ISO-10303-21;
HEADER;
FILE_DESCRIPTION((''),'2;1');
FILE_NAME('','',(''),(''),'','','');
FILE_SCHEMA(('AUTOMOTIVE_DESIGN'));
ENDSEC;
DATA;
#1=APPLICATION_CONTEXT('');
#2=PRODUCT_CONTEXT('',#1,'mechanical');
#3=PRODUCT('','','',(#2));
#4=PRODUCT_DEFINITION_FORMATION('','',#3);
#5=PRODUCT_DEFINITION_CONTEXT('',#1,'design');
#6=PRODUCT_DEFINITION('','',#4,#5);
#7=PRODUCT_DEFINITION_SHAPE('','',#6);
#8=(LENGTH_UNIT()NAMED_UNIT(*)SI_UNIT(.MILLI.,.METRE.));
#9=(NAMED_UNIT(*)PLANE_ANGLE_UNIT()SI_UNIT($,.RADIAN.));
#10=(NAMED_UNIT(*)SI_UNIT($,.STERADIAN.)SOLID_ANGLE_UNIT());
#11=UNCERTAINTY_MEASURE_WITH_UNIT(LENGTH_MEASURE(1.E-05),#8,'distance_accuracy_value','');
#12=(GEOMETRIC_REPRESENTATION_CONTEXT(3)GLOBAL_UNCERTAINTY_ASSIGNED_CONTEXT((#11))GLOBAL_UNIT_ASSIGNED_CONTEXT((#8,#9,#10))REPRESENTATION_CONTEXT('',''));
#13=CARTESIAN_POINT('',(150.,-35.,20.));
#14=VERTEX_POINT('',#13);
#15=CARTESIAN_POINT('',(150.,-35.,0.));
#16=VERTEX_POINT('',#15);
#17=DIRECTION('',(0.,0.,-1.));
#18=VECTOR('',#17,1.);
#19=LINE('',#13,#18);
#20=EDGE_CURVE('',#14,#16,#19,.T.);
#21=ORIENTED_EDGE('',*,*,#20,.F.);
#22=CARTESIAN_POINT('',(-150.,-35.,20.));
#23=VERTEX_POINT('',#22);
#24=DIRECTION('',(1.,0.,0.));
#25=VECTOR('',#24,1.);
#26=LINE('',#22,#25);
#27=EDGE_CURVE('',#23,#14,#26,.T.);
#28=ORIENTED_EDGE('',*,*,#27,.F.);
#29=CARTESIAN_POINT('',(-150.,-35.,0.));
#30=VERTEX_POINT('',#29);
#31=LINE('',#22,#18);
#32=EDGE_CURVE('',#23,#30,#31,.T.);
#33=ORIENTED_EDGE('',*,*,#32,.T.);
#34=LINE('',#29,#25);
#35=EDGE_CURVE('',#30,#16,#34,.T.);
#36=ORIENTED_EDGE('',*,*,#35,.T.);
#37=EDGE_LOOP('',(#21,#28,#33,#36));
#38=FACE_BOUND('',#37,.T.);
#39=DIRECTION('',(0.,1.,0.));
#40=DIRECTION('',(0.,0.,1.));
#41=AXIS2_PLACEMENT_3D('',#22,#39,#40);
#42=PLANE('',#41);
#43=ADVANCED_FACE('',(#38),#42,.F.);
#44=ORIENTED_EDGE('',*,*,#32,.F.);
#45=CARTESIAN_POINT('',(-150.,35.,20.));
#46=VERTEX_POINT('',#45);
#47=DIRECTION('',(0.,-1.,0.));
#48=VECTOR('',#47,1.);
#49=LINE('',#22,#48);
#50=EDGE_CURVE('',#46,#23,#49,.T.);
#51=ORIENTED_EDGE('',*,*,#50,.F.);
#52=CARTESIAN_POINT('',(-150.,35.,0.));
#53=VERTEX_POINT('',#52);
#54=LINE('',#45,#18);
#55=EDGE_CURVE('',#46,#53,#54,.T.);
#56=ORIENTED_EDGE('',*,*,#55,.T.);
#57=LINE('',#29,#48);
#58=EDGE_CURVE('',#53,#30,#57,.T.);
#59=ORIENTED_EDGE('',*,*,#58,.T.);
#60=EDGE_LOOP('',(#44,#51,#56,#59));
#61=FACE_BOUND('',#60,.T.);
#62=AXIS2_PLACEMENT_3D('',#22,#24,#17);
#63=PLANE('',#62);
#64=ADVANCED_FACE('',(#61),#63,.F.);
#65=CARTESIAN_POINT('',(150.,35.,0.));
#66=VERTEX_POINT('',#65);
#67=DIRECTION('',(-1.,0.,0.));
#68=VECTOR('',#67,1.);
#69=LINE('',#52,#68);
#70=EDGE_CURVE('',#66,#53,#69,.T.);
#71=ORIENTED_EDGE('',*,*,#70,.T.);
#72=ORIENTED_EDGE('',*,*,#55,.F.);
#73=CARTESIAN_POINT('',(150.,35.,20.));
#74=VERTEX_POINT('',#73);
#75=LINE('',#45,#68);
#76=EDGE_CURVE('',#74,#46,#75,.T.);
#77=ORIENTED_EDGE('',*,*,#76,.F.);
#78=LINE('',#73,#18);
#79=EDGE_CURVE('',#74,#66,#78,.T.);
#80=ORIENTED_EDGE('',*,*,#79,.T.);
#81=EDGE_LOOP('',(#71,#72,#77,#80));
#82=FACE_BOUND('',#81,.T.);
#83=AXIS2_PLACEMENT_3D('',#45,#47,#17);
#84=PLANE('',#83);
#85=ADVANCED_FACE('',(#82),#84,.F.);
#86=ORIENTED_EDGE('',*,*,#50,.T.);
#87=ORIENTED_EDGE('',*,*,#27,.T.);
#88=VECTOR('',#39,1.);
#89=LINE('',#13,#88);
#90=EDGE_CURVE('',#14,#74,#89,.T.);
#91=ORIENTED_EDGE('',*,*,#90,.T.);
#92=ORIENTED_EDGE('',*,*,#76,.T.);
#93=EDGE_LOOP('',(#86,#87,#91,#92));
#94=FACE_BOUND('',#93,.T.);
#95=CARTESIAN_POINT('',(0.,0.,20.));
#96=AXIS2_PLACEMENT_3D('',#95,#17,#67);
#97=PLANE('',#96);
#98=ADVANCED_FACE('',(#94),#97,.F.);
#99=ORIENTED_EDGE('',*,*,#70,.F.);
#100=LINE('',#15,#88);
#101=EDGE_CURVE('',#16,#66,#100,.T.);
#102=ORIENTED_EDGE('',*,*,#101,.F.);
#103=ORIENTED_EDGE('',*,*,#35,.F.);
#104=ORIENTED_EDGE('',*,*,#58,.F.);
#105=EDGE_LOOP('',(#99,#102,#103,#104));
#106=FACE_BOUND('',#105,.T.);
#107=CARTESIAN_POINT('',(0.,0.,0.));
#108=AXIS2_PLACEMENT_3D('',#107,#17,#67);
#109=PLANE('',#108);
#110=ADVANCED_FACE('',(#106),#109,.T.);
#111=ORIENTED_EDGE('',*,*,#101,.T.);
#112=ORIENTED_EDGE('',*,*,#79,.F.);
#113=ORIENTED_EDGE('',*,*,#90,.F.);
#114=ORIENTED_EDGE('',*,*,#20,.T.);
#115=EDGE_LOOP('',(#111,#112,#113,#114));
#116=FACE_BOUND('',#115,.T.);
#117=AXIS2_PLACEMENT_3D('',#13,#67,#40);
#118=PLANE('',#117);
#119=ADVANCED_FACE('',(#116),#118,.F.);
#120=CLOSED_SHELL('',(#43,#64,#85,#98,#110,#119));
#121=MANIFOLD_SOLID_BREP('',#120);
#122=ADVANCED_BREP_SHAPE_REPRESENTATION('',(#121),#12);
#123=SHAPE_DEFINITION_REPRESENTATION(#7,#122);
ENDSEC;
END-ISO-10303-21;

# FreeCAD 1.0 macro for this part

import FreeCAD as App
import Part
import Sketcher

V = App.Vector
Q = App.Units.Quantity


def add_polygon(sketch, points):
    """Adds a closed chain of lines whose ends are joined by coincident constraints."""
    first, n = sketch.GeometryCount, len(points)
    for a, b in zip(points, points[1:] + points[:1]):
        sketch.addGeometry(Part.LineSegment(App.Vector(*a, 0), App.Vector(*b, 0)), False)
    for i in range(n):
        sketch.addConstraint(Sketcher.Constraint("Coincident", first + i, 2, first + (i + 1) % n, 1))

doc = App.newDocument("Part")
body = doc.addObject("PartDesign::Body", "Body")

# Sketch on XY plane
sketch1 = body.newObject("Sketcher::SketchObject", "Sketch")
sketch1.AttachmentSupport = (doc.getObject("XY_Plane"), [""])
sketch1.MapMode = "FlatFace"
add_polygon(sketch1, [(-150, 35), (-150, -35), (150, -35), (150, 35)])  # lines 0-3
sketch1.addConstraint([
    Sketcher.Constraint("Vertical", 0),
    Sketcher.Constraint("Horizontal", 1),
    Sketcher.Constraint("Vertical", 2),
    Sketcher.Constraint("Horizontal", 3),
    Sketcher.Constraint("Symmetric", 0, 2, 2, 2, -1, 1),
    Sketcher.Constraint("DistanceX", 1, 1, 1, 2, Q("300 mm")),
    Sketcher.Constraint("DistanceY", 0, 2, 0, 1, Q("70 mm")),
])
pad1 = body.newObject("PartDesign::Pad", "Pad")
pad1.Profile = sketch1
pad1.Length = 20

doc.recompute()
